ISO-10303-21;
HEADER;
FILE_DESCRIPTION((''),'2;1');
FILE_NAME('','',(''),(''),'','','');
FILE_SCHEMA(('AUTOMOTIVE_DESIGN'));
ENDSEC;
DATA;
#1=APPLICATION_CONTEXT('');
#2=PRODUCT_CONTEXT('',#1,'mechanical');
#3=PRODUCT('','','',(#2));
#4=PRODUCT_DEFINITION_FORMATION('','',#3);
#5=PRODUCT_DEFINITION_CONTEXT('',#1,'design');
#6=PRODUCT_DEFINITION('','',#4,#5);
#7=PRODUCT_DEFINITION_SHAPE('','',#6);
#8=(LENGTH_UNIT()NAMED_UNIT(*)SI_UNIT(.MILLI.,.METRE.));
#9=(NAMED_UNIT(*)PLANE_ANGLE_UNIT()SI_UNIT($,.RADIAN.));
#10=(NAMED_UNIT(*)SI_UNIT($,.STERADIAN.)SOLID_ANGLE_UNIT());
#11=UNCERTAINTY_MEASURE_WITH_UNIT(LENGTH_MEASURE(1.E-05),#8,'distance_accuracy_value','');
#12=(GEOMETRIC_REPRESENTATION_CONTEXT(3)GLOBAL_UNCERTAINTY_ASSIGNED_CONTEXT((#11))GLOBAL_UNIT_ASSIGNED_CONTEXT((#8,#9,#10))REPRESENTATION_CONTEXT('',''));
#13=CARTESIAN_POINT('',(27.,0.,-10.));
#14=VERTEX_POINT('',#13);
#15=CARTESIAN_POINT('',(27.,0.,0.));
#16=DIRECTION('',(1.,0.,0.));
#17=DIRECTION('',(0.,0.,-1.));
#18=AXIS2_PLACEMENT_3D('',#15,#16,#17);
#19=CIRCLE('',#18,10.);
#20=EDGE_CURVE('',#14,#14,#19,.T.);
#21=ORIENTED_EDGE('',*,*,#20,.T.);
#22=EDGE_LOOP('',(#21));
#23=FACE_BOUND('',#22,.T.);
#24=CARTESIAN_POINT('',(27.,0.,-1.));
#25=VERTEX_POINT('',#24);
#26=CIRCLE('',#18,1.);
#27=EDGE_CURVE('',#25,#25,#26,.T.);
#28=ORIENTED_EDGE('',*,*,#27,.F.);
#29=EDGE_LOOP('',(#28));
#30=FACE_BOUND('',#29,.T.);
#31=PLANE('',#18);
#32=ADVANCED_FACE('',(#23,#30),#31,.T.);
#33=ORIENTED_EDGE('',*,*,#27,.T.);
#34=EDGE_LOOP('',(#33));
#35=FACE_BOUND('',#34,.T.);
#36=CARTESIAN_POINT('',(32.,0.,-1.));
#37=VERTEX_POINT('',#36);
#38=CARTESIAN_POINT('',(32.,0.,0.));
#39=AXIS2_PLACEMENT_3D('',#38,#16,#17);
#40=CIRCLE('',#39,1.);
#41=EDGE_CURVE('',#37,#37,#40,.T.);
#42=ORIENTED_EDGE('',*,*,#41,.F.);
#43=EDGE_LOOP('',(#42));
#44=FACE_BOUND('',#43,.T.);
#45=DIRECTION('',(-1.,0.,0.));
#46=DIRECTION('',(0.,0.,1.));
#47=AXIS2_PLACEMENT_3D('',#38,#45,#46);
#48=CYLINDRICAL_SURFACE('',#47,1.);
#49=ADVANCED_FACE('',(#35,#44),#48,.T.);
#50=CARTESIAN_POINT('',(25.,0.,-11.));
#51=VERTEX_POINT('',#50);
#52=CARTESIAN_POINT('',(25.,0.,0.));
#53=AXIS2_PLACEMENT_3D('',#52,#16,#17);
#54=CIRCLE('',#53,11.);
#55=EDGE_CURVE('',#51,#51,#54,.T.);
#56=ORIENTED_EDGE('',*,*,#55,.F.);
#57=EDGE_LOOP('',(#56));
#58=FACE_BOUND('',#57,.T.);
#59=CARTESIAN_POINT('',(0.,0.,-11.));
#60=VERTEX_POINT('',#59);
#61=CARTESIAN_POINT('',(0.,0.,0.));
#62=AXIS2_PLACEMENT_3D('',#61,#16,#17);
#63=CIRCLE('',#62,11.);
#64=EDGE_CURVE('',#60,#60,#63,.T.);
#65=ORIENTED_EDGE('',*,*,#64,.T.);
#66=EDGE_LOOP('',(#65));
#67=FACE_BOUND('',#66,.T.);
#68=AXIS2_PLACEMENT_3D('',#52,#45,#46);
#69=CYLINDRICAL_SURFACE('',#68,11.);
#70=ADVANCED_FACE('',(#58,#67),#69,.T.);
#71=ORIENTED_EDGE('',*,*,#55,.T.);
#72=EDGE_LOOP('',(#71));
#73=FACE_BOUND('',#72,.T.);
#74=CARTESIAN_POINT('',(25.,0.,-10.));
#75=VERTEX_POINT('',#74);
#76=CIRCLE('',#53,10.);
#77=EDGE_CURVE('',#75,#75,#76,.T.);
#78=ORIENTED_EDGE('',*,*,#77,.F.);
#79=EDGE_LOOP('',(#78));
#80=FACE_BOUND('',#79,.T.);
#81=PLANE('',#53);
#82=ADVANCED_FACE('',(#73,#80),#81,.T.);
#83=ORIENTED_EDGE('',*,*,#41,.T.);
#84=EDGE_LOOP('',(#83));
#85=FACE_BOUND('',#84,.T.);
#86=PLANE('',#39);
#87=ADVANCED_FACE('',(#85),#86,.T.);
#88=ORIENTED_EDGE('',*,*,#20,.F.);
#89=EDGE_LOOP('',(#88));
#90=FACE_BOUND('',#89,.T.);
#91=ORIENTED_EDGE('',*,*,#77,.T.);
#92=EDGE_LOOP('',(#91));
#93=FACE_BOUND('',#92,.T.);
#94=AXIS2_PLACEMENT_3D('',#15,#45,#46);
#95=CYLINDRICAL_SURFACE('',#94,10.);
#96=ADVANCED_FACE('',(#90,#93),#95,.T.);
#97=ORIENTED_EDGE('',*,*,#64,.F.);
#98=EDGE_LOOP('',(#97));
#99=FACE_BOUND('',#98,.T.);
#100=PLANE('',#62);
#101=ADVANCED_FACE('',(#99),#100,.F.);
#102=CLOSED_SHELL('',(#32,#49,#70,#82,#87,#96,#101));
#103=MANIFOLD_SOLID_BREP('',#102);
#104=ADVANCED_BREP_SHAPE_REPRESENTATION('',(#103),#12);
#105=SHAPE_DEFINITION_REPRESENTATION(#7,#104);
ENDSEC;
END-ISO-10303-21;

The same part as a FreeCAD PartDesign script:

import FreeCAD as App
import Part
import Sketcher

V = App.Vector
Q = App.Units.Quantity

doc = App.newDocument("Part")
body = doc.addObject("PartDesign::Body", "Body")

# Sketch on YZ plane
sketch1 = doc.addObject("Sketcher::SketchObject", "Sketch")
body.addObject(sketch1)
sketch1.AttachmentSupport = (doc.YZ_Plane, [""])
sketch1.MapMode = "FlatFace"
sketch1.addGeometry(Part.Circle(V(0, 0, 0), V(0, 0, 1), 11), False)
sketch1.addConstraint([
    Sketcher.Constraint("Coincident", 0, 3, -1, 1),
    Sketcher.Constraint("Diameter", 0, Q("22 mm")),
])
pad1 = doc.addObject("PartDesign::Pad", "Pad")
body.addObject(pad1)
pad1.Profile = sketch1
pad1.Length = 25

# Sketch on YZ plane
sketch2 = doc.addObject("Sketcher::SketchObject", "Sketch001")
body.addObject(sketch2)
sketch2.AttachmentSupport = (doc.YZ_Plane, [""])
sketch2.MapMode = "FlatFace"
sketch2.AttachmentOffset = App.Placement(V(0, 0, 25), App.Rotation())
sketch2.addGeometry(Part.Circle(V(0, 0, 0), V(0, 0, 1), 10), False)
sketch2.addConstraint([
    Sketcher.Constraint("Coincident", 0, 3, -1, 1),
    Sketcher.Constraint("Diameter", 0, Q("20 mm")),
])
pad2 = doc.addObject("PartDesign::Pad", "Pad001")
body.addObject(pad2)
pad2.Profile = sketch2
pad2.Length = 2

# Sketch on YZ plane
sketch3 = doc.addObject("Sketcher::SketchObject", "Sketch002")
body.addObject(sketch3)
sketch3.AttachmentSupport = (doc.YZ_Plane, [""])
sketch3.MapMode = "FlatFace"
sketch3.AttachmentOffset = App.Placement(V(0, 0, 27), App.Rotation())
sketch3.addGeometry(Part.Circle(V(0, 0, 0), V(0, 0, 1), 1), False)
sketch3.addConstraint([
    Sketcher.Constraint("Coincident", 0, 3, -1, 1),
    Sketcher.Constraint("Diameter", 0, Q("2 mm")),
])
pad3 = doc.addObject("PartDesign::Pad", "Pad002")
body.addObject(pad3)
pad3.Profile = sketch3
pad3.Length = 5

doc.recompute()
